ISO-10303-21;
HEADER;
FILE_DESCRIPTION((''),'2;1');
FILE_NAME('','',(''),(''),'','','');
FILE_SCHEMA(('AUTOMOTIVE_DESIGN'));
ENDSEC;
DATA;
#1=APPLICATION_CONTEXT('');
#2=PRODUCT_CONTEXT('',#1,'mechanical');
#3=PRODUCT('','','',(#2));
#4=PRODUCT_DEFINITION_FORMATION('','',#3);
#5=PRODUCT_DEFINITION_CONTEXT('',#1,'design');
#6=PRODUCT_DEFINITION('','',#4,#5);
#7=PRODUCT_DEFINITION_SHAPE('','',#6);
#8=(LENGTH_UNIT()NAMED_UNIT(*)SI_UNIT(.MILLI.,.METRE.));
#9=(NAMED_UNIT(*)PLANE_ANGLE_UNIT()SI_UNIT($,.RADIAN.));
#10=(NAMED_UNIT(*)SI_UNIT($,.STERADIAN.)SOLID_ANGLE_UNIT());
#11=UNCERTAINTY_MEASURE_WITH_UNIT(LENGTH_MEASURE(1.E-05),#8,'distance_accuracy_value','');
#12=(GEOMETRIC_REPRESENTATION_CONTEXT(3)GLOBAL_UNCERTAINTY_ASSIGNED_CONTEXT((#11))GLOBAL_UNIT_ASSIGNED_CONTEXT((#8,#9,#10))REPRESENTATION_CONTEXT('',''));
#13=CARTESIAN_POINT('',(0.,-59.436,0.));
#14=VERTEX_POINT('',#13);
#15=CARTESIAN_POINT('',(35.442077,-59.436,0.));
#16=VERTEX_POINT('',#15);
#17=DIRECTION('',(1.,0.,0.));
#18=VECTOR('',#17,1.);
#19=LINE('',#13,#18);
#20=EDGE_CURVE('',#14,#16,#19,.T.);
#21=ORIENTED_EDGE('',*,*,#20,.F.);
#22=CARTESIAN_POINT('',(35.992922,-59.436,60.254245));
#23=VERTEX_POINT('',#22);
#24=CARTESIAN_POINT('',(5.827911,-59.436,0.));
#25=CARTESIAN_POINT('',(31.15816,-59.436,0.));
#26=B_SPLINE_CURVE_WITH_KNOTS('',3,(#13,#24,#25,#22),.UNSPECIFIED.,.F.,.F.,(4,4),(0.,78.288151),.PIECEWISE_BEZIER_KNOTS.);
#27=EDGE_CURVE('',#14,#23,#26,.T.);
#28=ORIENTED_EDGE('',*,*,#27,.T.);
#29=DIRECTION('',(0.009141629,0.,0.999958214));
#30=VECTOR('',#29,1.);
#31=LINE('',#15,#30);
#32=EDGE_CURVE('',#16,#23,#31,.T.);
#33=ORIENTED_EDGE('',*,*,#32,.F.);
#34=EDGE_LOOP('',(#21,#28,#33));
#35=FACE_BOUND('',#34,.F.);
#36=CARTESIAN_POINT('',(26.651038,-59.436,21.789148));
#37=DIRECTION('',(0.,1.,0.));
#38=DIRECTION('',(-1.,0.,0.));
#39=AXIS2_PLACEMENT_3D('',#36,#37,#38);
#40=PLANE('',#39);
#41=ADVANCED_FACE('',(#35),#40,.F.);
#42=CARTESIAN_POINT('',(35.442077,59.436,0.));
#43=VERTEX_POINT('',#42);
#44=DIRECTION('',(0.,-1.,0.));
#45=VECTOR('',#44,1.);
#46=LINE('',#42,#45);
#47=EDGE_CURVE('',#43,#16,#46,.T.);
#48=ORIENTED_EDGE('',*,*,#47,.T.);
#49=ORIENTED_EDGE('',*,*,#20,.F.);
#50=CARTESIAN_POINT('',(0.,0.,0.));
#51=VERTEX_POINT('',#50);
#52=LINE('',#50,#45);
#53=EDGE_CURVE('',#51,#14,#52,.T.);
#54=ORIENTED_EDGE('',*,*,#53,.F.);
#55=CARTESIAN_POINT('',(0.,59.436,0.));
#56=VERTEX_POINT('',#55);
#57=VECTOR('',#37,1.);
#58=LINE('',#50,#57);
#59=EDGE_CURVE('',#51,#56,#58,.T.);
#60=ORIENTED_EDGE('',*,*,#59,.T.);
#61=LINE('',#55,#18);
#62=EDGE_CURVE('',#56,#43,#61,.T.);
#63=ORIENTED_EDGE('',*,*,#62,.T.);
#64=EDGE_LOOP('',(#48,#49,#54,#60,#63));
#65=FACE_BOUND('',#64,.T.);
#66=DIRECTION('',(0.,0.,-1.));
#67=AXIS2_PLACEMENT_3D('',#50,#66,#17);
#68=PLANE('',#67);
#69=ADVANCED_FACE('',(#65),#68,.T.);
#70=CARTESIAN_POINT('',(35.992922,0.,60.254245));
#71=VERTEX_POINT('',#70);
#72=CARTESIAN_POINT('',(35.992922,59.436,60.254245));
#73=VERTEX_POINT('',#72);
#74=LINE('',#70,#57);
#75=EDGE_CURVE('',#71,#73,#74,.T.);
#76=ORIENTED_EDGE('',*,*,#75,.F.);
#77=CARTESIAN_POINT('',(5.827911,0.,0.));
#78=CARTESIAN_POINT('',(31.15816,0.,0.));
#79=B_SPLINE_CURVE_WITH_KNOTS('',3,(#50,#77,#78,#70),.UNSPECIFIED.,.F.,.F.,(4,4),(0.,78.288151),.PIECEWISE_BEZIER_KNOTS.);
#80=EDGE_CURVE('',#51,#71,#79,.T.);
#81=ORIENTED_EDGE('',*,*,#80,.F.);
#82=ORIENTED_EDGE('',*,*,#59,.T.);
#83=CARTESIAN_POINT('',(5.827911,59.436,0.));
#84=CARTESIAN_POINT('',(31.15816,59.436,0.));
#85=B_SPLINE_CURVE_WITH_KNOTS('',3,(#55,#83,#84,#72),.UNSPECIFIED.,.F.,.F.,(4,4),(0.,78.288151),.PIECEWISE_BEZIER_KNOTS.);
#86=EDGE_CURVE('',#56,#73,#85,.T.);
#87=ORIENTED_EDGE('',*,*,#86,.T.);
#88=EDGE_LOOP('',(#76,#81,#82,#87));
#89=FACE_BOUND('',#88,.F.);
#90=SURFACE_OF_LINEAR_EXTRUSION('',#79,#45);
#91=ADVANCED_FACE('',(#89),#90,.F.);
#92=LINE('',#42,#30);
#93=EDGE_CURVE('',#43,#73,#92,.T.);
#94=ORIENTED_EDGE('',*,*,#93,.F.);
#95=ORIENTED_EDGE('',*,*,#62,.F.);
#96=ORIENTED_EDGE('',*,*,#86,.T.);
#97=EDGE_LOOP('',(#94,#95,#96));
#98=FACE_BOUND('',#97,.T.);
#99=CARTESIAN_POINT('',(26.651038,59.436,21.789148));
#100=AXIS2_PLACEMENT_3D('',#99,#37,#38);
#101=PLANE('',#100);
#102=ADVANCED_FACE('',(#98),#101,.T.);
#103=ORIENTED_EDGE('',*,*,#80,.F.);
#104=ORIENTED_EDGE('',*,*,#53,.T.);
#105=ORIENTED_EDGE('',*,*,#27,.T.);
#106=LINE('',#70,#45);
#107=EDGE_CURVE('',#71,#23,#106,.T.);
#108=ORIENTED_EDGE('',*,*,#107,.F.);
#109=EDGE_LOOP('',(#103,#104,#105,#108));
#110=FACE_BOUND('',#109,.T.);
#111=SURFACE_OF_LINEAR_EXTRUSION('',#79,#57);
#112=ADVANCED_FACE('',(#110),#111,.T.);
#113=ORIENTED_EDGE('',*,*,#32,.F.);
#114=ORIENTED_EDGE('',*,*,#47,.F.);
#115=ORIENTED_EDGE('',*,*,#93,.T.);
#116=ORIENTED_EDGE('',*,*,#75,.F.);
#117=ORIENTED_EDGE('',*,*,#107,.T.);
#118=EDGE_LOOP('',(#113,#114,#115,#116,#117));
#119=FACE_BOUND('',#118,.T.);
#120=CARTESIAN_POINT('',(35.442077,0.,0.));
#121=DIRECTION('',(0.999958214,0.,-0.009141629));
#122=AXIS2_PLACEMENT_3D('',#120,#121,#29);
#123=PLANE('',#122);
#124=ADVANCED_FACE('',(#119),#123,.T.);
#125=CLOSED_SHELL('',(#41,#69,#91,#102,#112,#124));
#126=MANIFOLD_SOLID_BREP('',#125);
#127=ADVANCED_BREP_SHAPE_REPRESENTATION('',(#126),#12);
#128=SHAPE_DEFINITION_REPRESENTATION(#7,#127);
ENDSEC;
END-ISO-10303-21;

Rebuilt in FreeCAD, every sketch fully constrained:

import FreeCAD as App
import Part
import Sketcher
from FreeCAD import Vector
Q = App.Units.Quantity

doc = App.newDocument("Part")
body = doc.addObject("PartDesign::Body", "Body")

sketch1 = doc.addObject("Sketcher::SketchObject", "Sketch")
body.addObject(sketch1)
sketch1.AttachmentSupport = (doc.XZ_Plane, [""])
sketch1.MapMode = "FlatFace"
sketch1.addGeometry([
    Part.BSplineCurve([Vector(0, 0, 0), Vector(5.827911, 0, 0), Vector(31.15816, 0, 0), Vector(35.992922, 60.254245, 0)], [4, 4], [0, 78.288151], False, 3, [1, 1, 1, 1], False),
    Part.LineSegment(Vector(0, 0, 0), Vector(35.442077, 0, 0)),
    Part.LineSegment(Vector(35.442077, 0, 0), Vector(35.992922, 60.254245, 0)),
], False)
sketch1.addConstraint([
    Sketcher.Constraint("Block", 0),
    Sketcher.Constraint("Coincident", 0, 1, 1, 1),
    Sketcher.Constraint("Coincident", 1, 2, 2, 1),
    Sketcher.Constraint("Coincident", 2, 2, 0, 2),
    Sketcher.Constraint("Horizontal", 1),
    Sketcher.Constraint("DistanceX", 1, 1, 1, 2, Q("35.442077 mm")),
])
pad1 = doc.addObject("PartDesign::Pad", "Pad")
body.addObject(pad1)
pad1.Profile = sketch1
pad1.Length = Q("4.68 in")
pad1.Midplane = True

doc.recompute()
